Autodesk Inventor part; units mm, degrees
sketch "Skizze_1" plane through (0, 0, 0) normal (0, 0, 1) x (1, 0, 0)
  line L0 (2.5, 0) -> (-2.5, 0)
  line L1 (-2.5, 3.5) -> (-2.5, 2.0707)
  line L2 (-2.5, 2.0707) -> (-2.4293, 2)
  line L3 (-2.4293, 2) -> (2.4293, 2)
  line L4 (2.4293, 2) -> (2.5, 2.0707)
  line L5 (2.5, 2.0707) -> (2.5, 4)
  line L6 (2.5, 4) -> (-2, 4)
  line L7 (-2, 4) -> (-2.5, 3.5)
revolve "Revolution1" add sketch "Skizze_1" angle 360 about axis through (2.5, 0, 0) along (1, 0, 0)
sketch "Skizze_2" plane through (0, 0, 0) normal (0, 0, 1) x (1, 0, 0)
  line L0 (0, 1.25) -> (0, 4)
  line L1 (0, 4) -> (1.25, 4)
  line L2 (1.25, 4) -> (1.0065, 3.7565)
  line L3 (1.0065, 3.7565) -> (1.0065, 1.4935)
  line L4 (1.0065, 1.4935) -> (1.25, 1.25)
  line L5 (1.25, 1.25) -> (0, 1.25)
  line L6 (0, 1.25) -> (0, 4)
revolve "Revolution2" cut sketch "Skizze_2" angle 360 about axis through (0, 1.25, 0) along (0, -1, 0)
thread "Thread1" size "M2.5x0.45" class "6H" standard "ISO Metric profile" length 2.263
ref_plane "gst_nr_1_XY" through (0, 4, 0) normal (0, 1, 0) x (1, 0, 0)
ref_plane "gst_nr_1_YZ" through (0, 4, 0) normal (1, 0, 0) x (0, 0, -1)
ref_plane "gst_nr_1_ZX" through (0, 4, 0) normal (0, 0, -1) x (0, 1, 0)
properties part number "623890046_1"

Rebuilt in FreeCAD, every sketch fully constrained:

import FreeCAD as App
import Part
import Sketcher

V = App.Vector
Q = App.Units.Quantity


def add_polygon(sketch, points):
    """Adds a closed chain of lines whose ends are joined by coincident constraints."""
    first, n = sketch.GeometryCount, len(points)
    for a, b in zip(points, points[1:] + points[:1]):
        sketch.addGeometry(Part.LineSegment(App.Vector(*a, 0), App.Vector(*b, 0)), False)
    for i in range(n):
        sketch.addConstraint(Sketcher.Constraint("Coincident", first + i, 2, first + (i + 1) % n, 1))

doc = App.newDocument("Part")
body = doc.addObject("PartDesign::Body", "Body")

# Sketch on XY plane
sketch1 = body.newObject("Sketcher::SketchObject", "Sketch")
sketch1.AttachmentSupport = (doc.getObject("XY_Plane"), [""])
sketch1.MapMode = "FlatFace"
add_polygon(sketch1, [(-2, 4), (-2.5, 3.5), (-2.5, 2.0707), (-2.4293, 2), (2.4293, 2), (2.5, 2.0707), (2.5, 4)])  # lines 0-6
sketch1.addConstraint(Sketcher.Constraint("Vertical", 1))
sketch1.addConstraint(Sketcher.Constraint("Horizontal", 3))
sketch1.addConstraint(Sketcher.Constraint("Vertical", 5))
sketch1.addConstraint(Sketcher.Constraint("Horizontal", 6))
sketch1.addConstraint(Sketcher.Constraint("Symmetric", 1, 2, 4, 2, -2))
sketch1.addConstraint(Sketcher.Constraint("Perpendicular", 0, 2))
sketch1.addConstraint(Sketcher.Constraint("Perpendicular", 2, 4))
sketch1.addConstraint(Sketcher.Constraint("Equal", 2, 4))
sketch1.addConstraint(Sketcher.Constraint("DistanceX", 6, 2, 6, 1, Q("4.5 mm")))
sketch1.addConstraint(Sketcher.Constraint("DistanceY", -1, 1, 2, 2, Q("2 mm")))
sketch1.addConstraint(Sketcher.Constraint("DistanceY", -1, 1, 5, 2, Q("4 mm")))
sketch1.addConstraint(Sketcher.Constraint("DistanceX", 6, 2, -1, 1, Q("2 mm")))
sketch1.addConstraint(Sketcher.Constraint("Distance", 2, Q("0.1 mm")))
revolution = body.newObject("PartDesign::Revolution", "Revolution")
revolution.Profile = sketch1
revolution.ReferenceAxis = (sketch1, ["H_Axis"])
revolution.Angle = 360

# Sketch on XY plane
sketch2 = body.newObject("Sketcher::SketchObject", "Sketch001")
sketch2.AttachmentSupport = (doc.getObject("XY_Plane"), [""])
sketch2.MapMode = "FlatFace"
add_polygon(sketch2, [(0, 4), (0, 1.25), (1.25, 1.25), (1.0065, 1.4935), (1.0065, 3.7565), (1.25, 4)])  # lines 0-5
sketch2.addConstraint(Sketcher.Constraint("Vertical", 0))
sketch2.addConstraint(Sketcher.Constraint("Horizontal", 1))
sketch2.addConstraint(Sketcher.Constraint("Vertical", 3))
sketch2.addConstraint(Sketcher.Constraint("Horizontal", 5))
sketch2.addConstraint(Sketcher.Constraint("PointOnObject", 0, 2, -2))
sketch2.addConstraint(Sketcher.Constraint("Perpendicular", 2, 4))
sketch2.addConstraint(Sketcher.Constraint("Vertical", 1, 2, 4, 2))
sketch2.addConstraint(Sketcher.Constraint("Equal", 2, 4))
sketch2.addConstraint(Sketcher.Constraint("DistanceY", -1, 1, 4, 2, Q("4 mm")))
sketch2.addConstraint(Sketcher.Constraint("DistanceX", 1, 1, 1, 2, Q("1.25 mm")))
sketch2.addConstraint(Sketcher.Constraint("DistanceY", 0, 2, 0, 1, Q("2.75 mm")))
sketch2.addConstraint(Sketcher.Constraint("DistanceY", 3, 1, 3, 2, Q("2.263 mm")))
groove = body.newObject("PartDesign::Groove", "Groove")
groove.Profile = sketch2
groove.ReferenceAxis = (sketch2, ["V_Axis"])
groove.Angle = 360

doc.recompute()
